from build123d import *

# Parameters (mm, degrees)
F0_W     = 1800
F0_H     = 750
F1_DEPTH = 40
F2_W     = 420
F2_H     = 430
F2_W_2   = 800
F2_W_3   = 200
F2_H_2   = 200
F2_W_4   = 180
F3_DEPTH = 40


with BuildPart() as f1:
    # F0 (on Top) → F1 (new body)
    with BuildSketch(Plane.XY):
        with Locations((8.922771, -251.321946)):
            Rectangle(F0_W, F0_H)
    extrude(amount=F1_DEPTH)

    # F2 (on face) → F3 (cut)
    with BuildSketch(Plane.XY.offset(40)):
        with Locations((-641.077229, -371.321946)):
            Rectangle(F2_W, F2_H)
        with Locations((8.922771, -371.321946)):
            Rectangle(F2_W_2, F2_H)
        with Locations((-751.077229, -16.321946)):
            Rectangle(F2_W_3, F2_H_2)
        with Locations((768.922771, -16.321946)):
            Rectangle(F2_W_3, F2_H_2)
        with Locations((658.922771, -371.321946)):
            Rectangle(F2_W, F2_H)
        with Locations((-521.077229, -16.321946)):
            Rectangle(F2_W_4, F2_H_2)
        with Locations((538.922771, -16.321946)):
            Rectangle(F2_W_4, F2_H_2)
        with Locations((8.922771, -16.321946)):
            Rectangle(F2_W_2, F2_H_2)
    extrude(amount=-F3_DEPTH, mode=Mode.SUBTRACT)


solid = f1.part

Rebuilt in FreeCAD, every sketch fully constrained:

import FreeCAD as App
import Part
import Sketcher

V = App.Vector

doc = App.newDocument("Part")
body = doc.addObject("PartDesign::Body", "Body")

# Sketch on XY plane
sketch1 = body.newObject("Sketcher::SketchObject", "Sketch")
sketch1.AttachmentSupport = (doc.getObject("XY_Plane"), [""])
sketch1.MapMode = "FlatFace"
sketch1.addGeometry([
    Part.LineSegment(V(-891, 124, 0), V(-891, -626, 0)),
    Part.LineSegment(V(-891, -626, 0), V(909, -626, 0)),
    Part.LineSegment(V(909, -626, 0), V(909, 124, 0)),
    Part.LineSegment(V(909, 124, 0), V(-891, 124, 0)),
], False)
sketch1.addConstraint([
    Sketcher.Constraint("Coincident", 0, 2, 1, 1),
    Sketcher.Constraint("Coincident", 1, 2, 2, 1),
    Sketcher.Constraint("Coincident", 2, 2, 3, 1),
    Sketcher.Constraint("Coincident", 3, 2, 0, 1),
    Sketcher.Constraint("Vertical", 0),
    Sketcher.Constraint("Horizontal", 1),
    Sketcher.Constraint("Vertical", 2),
    Sketcher.Constraint("Horizontal", 3),
    Sketcher.Constraint("DistanceX", 1, 1, 1, 2, 1800.0),
    Sketcher.Constraint("DistanceY", 0, 2, 0, 1, 750.0),
    Sketcher.Constraint("DistanceX", 0, 2, -1, 1, 891.077229),
    Sketcher.Constraint("DistanceY", 0, 2, -1, 1, 626.321946),
])
pad1 = body.newObject("PartDesign::Pad", "Pad")
pad1.Profile = sketch1
pad1.Length = 40

# Sketch on XY plane
sketch2 = body.newObject("Sketcher::SketchObject", "Sketch001")
sketch2.AttachmentSupport = (doc.getObject("XY_Plane"), [""])
sketch2.MapMode = "FlatFace"
sketch2.AttachmentOffset = App.Placement(V(0, 0, 40), App.Rotation())
sketch2.addGeometry([
    Part.LineSegment(V(-851, -156, 0), V(-851, -586, 0)),  # 0
    Part.LineSegment(V(-851, -586, 0), V(-431, -586, 0)),  # 1
    Part.LineSegment(V(-431, -586, 0), V(-431, -156, 0)),  # 2
    Part.LineSegment(V(-431, -156, 0), V(-851, -156, 0)),  # 3
    Part.LineSegment(V(-391, -156, 0), V(-391, -586, 0)),  # 4
    Part.LineSegment(V(-391, -586, 0), V(409, -586, 0)),  # 5
    Part.LineSegment(V(409, -586, 0), V(409, -156, 0)),  # 6
    Part.LineSegment(V(409, -156, 0), V(-391, -156, 0)),  # 7
    Part.LineSegment(V(-851, 84, 0), V(-851, -116, 0)),  # 8
    Part.LineSegment(V(-851, -116, 0), V(-651, -116, 0)),  # 9
    Part.LineSegment(V(-651, -116, 0), V(-651, 84, 0)),  # 10
    Part.LineSegment(V(-651, 84, 0), V(-851, 84, 0)),  # 11
    Part.LineSegment(V(669, 84, 0), V(669, -116, 0)),  # 12
    Part.LineSegment(V(669, -116, 0), V(869, -116, 0)),  # 13
    Part.LineSegment(V(869, -116, 0), V(869, 84, 0)),  # 14
    Part.LineSegment(V(869, 84, 0), V(669, 84, 0)),  # 15
    Part.LineSegment(V(449, -156, 0), V(449, -586, 0)),  # 16
    Part.LineSegment(V(449, -586, 0), V(869, -586, 0)),  # 17
    Part.LineSegment(V(869, -586, 0), V(869, -156, 0)),  # 18
    Part.LineSegment(V(869, -156, 0), V(449, -156, 0)),  # 19
    Part.LineSegment(V(-611, 84, 0), V(-611, -116, 0)),  # 20
    Part.LineSegment(V(-611, -116, 0), V(-431, -116, 0)),  # 21
    Part.LineSegment(V(-431, -116, 0), V(-431, 84, 0)),  # 22
    Part.LineSegment(V(-431, 84, 0), V(-611, 84, 0)),  # 23
    Part.LineSegment(V(449, 84, 0), V(449, -116, 0)),  # 24
    Part.LineSegment(V(449, -116, 0), V(629, -116, 0)),  # 25
    Part.LineSegment(V(629, -116, 0), V(629, 84, 0)),  # 26
    Part.LineSegment(V(629, 84, 0), V(449, 84, 0)),  # 27
    Part.LineSegment(V(-391, 84, 0), V(-391, -116, 0)),  # 28
    Part.LineSegment(V(-391, -116, 0), V(409, -116, 0)),  # 29
    Part.LineSegment(V(409, -116, 0), V(409, 84, 0)),  # 30
    Part.LineSegment(V(409, 84, 0), V(-391, 84, 0)),  # 31
], False)
sketch2.addConstraint([
    Sketcher.Constraint("Coincident", 0, 2, 1, 1),
    Sketcher.Constraint("Coincident", 1, 2, 2, 1),
    Sketcher.Constraint("Coincident", 2, 2, 3, 1),
    Sketcher.Constraint("Coincident", 3, 2, 0, 1),
    Sketcher.Constraint("Coincident", 4, 2, 5, 1),
    Sketcher.Constraint("Coincident", 5, 2, 6, 1),
    Sketcher.Constraint("Coincident", 6, 2, 7, 1),
    Sketcher.Constraint("Coincident", 7, 2, 4, 1),
    Sketcher.Constraint("Coincident", 8, 2, 9, 1),
    Sketcher.Constraint("Coincident", 9, 2, 10, 1),
    Sketcher.Constraint("Coincident", 10, 2, 11, 1),
    Sketcher.Constraint("Coincident", 11, 2, 8, 1),
    Sketcher.Constraint("Coincident", 12, 2, 13, 1),
    Sketcher.Constraint("Coincident", 13, 2, 14, 1),
    Sketcher.Constraint("Coincident", 14, 2, 15, 1),
    Sketcher.Constraint("Coincident", 15, 2, 12, 1),
    Sketcher.Constraint("Coincident", 16, 2, 17, 1),
    Sketcher.Constraint("Coincident", 17, 2, 18, 1),
    Sketcher.Constraint("Coincident", 18, 2, 19, 1),
    Sketcher.Constraint("Coincident", 19, 2, 16, 1),
    Sketcher.Constraint("Coincident", 20, 2, 21, 1),
    Sketcher.Constraint("Coincident", 21, 2, 22, 1),
    Sketcher.Constraint("Coincident", 22, 2, 23, 1),
    Sketcher.Constraint("Coincident", 23, 2, 20, 1),
    Sketcher.Constraint("Coincident", 24, 2, 25, 1),
    Sketcher.Constraint("Coincident", 25, 2, 26, 1),
    Sketcher.Constraint("Coincident", 26, 2, 27, 1),
    Sketcher.Constraint("Coincident", 27, 2, 24, 1),
    Sketcher.Constraint("Coincident", 28, 2, 29, 1),
    Sketcher.Constraint("Coincident", 29, 2, 30, 1),
    Sketcher.Constraint("Coincident", 30, 2, 31, 1),
    Sketcher.Constraint("Coincident", 31, 2, 28, 1),
    Sketcher.Constraint("Vertical", 0),
    Sketcher.Constraint("Horizontal", 1),
    Sketcher.Constraint("Vertical", 2),
    Sketcher.Constraint("Horizontal", 3),
    Sketcher.Constraint("Vertical", 4),
    Sketcher.Constraint("Horizontal", 5),
    Sketcher.Constraint("Vertical", 6),
    Sketcher.Constraint("Horizontal", 7),
    Sketcher.Constraint("Vertical", 8),
    Sketcher.Constraint("Horizontal", 9),
    Sketcher.Constraint("Vertical", 10),
    Sketcher.Constraint("Horizontal", 11),
    Sketcher.Constraint("Vertical", 12),
    Sketcher.Constraint("Horizontal", 13),
    Sketcher.Constraint("Vertical", 14),
    Sketcher.Constraint("Horizontal", 15),
    Sketcher.Constraint("Vertical", 16),
    Sketcher.Constraint("Horizontal", 17),
    Sketcher.Constraint("Vertical", 18),
    Sketcher.Constraint("Horizontal", 19),
    Sketcher.Constraint("Vertical", 20),
    Sketcher.Constraint("Horizontal", 21),
    Sketcher.Constraint("Vertical", 22),
    Sketcher.Constraint("Horizontal", 23),
    Sketcher.Constraint("Vertical", 24),
    Sketcher.Constraint("Horizontal", 25),
    Sketcher.Constraint("Vertical", 26),
    Sketcher.Constraint("Horizontal", 27),
    Sketcher.Constraint("Vertical", 28),
    Sketcher.Constraint("Horizontal", 29),
    Sketcher.Constraint("Vertical", 30),
    Sketcher.Constraint("Horizontal", 31),
    Sketcher.Constraint("Horizontal", 1, 2, 4, 2),
    Sketcher.Constraint("Horizontal", 3, 2, 6, 2),
    Sketcher.Constraint("Horizontal", 9, 2, 12, 2),
    Sketcher.Constraint("Horizontal", 11, 2, 14, 2),
    Sketcher.Constraint("Horizontal", 5, 2, 16, 2),
    Sketcher.Constraint("Horizontal", 7, 2, 18, 2),
    Sketcher.Constraint("Horizontal", 13, 2, 20, 2),
    Sketcher.Constraint("Horizontal", 15, 2, 22, 2),
    Sketcher.Constraint("Horizontal", 21, 2, 24, 2),
    Sketcher.Constraint("Horizontal", 23, 2, 26, 2),
    Sketcher.Constraint("Horizontal", 25, 2, 28, 2),
    Sketcher.Constraint("Horizontal", 27, 2, 30, 2),
    Sketcher.Constraint("Vertical", 3, 2, 8, 2),
    Sketcher.Constraint("Vertical", 14, 2, 17, 2),
    Sketcher.Constraint("Vertical", 2, 2, 21, 2),
    Sketcher.Constraint("Vertical", 19, 2, 24, 2),
    Sketcher.Constraint("Vertical", 7, 2, 28, 2),
    Sketcher.Constraint("Vertical", 6, 2, 29, 2),
    Sketcher.Constraint("Equal", 11, 13),
    Sketcher.Constraint("Equal", 3, 17),
    Sketcher.Constraint("Equal", 23, 25),
    Sketcher.Constraint("Equal", 15, 8),
    Sketcher.Constraint("DistanceX", 1, 1, 1, 2, 420.0),
    Sketcher.Constraint("DistanceX", 5, 1, 5, 2, 800.0),
    Sketcher.Constraint("DistanceX", 9, 1, 9, 2, 200.0),
    Sketcher.Constraint("DistanceX", 21, 1, 21, 2, 180.0),
    Sketcher.Constraint("DistanceY", 0, 2, 0, 1, 430.0),
    Sketcher.Constraint("DistanceX", 1, 2, 4, 2, 40.0),
    Sketcher.Constraint("DistanceY", 3, 2, 8, 2, 40.0),
    Sketcher.Constraint("DistanceX", 6, 2, 12, 2, 260.0),
    Sketcher.Constraint("DistanceX", 0, 2, -1, 1, 851.077229),
    Sketcher.Constraint("DistanceY", 0, 2, -1, 1, 586.321946),
])
pocket1 = body.newObject("PartDesign::Pocket", "Pocket")
pocket1.Profile = sketch2
pocket1.Length = 40

doc.recompute()
